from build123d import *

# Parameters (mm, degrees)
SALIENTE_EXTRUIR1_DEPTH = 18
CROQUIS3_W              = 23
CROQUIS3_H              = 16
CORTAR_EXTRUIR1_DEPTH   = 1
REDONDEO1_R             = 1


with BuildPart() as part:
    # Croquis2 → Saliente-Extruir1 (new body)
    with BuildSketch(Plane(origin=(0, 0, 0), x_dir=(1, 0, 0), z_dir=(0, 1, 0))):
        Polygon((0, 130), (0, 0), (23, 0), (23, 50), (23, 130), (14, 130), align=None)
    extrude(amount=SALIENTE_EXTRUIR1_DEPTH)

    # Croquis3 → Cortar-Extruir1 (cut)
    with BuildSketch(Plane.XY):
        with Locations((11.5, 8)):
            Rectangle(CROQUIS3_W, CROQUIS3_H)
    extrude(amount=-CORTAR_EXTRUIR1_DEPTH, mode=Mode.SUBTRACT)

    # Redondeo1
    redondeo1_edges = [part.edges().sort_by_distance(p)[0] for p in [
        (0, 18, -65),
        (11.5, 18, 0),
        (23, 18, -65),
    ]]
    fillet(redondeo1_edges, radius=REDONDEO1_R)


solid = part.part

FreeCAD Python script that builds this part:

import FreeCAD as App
import Part
import Sketcher
Q = App.Units.Quantity


def edges_at(feature, points):
    """Names of the edges that pass closest to the given points."""
    edges = feature.Shape.Edges
    near = lambda p: min(range(len(edges)), key=lambda i: edges[i].distToShape(Part.Vertex(*p))[0])
    return sorted({f"Edge{near(p) + 1}" for p in points})


def add_polygon(sketch, points):
    """Adds a closed chain of lines whose ends are joined by coincident constraints."""
    first, n = sketch.GeometryCount, len(points)
    for a, b in zip(points, points[1:] + points[:1]):
        sketch.addGeometry(Part.LineSegment(App.Vector(*a, 0), App.Vector(*b, 0)), False)
    for i in range(n):
        sketch.addConstraint(Sketcher.Constraint("Coincident", first + i, 2, first + (i + 1) % n, 1))

doc = App.newDocument("Part")
body = doc.addObject("PartDesign::Body", "Body")

sketch1 = doc.addObject("Sketcher::SketchObject", "Sketch")
body.addObject(sketch1)
sketch1.AttachmentSupport = (doc.XZ_Plane, [""])
sketch1.MapMode = "FlatFace"
add_polygon(sketch1, [(0, -130), (0, 0), (23, 0), (23, -130)])
sketch1.addConstraint([
    Sketcher.Constraint("Vertical", 0),
    Sketcher.Constraint("Horizontal", 1),
    Sketcher.Constraint("Vertical", 2),
    Sketcher.Constraint("Horizontal", 3),
    Sketcher.Constraint("Coincident", 0, 2, -1, 1),
    Sketcher.Constraint("DistanceX", 1, 1, 1, 2, Q("23 mm")),
    Sketcher.Constraint("DistanceY", 0, 1, 0, 2, Q("130 mm")),
])
pad1 = doc.addObject("PartDesign::Pad", "Pad")
body.addObject(pad1)
pad1.Profile = sketch1
pad1.Length = 18
pad1.Reversed = True

sketch2 = doc.addObject("Sketcher::SketchObject", "Sketch001")
body.addObject(sketch2)
sketch2.AttachmentSupport = (doc.XY_Plane, [""])
sketch2.MapMode = "FlatFace"
add_polygon(sketch2, [(0, 16), (0, 0), (23, 0), (23, 16)])
sketch2.addConstraint([
    Sketcher.Constraint("Vertical", 0),
    Sketcher.Constraint("Horizontal", 1),
    Sketcher.Constraint("Vertical", 2),
    Sketcher.Constraint("Horizontal", 3),
    Sketcher.Constraint("Coincident", 0, 2, -1, 1),
    Sketcher.Constraint("DistanceX", 1, 1, 1, 2, Q("23 mm")),
    Sketcher.Constraint("DistanceY", 0, 2, 0, 1, Q("16 mm")),
])
pocket1 = doc.addObject("PartDesign::Pocket", "Pocket")
body.addObject(pocket1)
pocket1.Profile = sketch2
pocket1.Length = 1
doc.recompute()

fillet = doc.addObject("PartDesign::Fillet", "Fillet")
body.addObject(fillet)
fillet.Base = (pocket1, edges_at(pocket1, [(0, 18, -65), (11.5, 18, 0), (23, 18, -65)]))
fillet.Radius = 1

doc.recompute()
